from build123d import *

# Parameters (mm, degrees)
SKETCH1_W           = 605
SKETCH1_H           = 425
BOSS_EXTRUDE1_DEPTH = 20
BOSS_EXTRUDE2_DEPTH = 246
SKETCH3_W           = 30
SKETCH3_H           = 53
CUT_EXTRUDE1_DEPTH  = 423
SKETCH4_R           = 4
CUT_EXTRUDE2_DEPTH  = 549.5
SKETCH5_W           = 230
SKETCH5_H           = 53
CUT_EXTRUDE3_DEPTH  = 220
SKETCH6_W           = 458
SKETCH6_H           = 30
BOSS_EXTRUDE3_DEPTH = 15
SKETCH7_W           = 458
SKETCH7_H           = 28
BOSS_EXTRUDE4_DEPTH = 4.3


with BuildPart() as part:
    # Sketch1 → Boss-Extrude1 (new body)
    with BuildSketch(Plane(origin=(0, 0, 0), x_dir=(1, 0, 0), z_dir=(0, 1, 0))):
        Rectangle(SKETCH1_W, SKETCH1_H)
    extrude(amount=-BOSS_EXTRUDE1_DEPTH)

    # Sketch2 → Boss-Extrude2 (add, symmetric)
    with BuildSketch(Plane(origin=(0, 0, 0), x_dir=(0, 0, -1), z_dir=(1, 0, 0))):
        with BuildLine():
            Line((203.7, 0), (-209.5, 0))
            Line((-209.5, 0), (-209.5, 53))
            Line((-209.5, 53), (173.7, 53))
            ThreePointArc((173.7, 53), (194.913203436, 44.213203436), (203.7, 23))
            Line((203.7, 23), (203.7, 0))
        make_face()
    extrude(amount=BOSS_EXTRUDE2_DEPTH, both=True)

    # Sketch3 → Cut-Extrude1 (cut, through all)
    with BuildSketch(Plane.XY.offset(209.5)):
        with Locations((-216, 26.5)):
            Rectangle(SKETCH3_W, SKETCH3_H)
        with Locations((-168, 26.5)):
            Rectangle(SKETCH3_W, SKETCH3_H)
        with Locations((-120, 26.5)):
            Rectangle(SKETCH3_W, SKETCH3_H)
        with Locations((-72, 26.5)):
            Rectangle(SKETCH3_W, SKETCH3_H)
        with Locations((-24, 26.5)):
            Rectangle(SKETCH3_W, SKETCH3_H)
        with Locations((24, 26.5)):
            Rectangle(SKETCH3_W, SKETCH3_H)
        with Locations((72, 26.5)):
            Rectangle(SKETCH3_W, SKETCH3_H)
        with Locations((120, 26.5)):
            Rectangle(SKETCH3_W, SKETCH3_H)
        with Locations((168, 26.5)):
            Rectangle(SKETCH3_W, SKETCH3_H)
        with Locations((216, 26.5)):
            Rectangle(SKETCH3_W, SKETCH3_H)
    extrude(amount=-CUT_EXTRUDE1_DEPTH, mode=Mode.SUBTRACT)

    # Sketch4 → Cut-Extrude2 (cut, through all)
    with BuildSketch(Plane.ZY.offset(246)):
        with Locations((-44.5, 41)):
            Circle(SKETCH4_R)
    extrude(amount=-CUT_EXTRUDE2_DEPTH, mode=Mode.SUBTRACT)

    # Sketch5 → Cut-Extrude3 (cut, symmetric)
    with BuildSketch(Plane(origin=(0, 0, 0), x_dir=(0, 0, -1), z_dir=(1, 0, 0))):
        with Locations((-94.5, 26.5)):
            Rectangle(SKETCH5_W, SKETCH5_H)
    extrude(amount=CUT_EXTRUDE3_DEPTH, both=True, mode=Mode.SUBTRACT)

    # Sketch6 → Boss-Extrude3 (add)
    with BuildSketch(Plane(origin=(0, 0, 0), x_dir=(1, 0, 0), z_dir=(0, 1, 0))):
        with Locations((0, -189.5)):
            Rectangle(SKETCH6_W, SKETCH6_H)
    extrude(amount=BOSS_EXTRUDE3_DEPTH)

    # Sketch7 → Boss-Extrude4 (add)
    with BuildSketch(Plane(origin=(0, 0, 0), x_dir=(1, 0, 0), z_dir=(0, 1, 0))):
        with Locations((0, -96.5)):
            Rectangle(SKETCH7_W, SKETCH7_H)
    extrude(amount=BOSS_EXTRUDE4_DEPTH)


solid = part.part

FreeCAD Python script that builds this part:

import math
import FreeCAD as App
import Part
import Sketcher
Q = App.Units.Quantity

doc = App.newDocument("Part")
body = doc.addObject("PartDesign::Body", "Body")

# Sketch on XZ plane
sketch1 = body.newObject("Sketcher::SketchObject", "Sketch")
sketch1.AttachmentSupport = (doc.getObject("XZ_Plane"), [""])
sketch1.MapMode = "FlatFace"
sketch1.addGeometry([
    Part.LineSegment(App.Vector(-302, -212, 0), App.Vector(-302, 212, 0)),
    Part.LineSegment(App.Vector(-302, 212, 0), App.Vector(302, 212, 0)),
    Part.LineSegment(App.Vector(302, 212, 0), App.Vector(302, -212, 0)),
    Part.LineSegment(App.Vector(302, -212, 0), App.Vector(-302, -212, 0)),
], False)
sketch1.addConstraint([
    Sketcher.Constraint("Coincident", 0, 2, 1, 1),
    Sketcher.Constraint("Coincident", 1, 2, 2, 1),
    Sketcher.Constraint("Coincident", 2, 2, 3, 1),
    Sketcher.Constraint("Coincident", 3, 2, 0, 1),
    Sketcher.Constraint("Vertical", 0),
    Sketcher.Constraint("Horizontal", 1),
    Sketcher.Constraint("Vertical", 2),
    Sketcher.Constraint("Horizontal", 3),
    Sketcher.Constraint("Symmetric", 0, 2, 2, 2, -1, 1),
    Sketcher.Constraint("DistanceX", 1, 1, 1, 2, Q("605 mm")),
    Sketcher.Constraint("DistanceY", 0, 1, 0, 2, Q("425 mm")),
])
pad1 = body.newObject("PartDesign::Pad", "Pad")
pad1.Profile = sketch1
pad1.Length = 20

# Sketch on YZ plane
sketch2 = body.newObject("Sketcher::SketchObject", "Sketch001")
sketch2.AttachmentSupport = (doc.getObject("YZ_Plane"), [""])
sketch2.MapMode = "FlatFace"
sketch2.addGeometry([
    Part.LineSegment(App.Vector(0, 210, 0), App.Vector(0, -204, 0)),  # 0
    Part.LineSegment(App.Vector(0, -204, 0), App.Vector(23, -204, 0)),  # 1
    Part.ArcOfCircle(Part.Circle(App.Vector(23, -174, 0), App.Vector(0, 0, 1), 30), math.radians(-90), math.radians(0)),  # 2
    Part.LineSegment(App.Vector(53, -174, 0), App.Vector(53, 210, 0)),  # 3
    Part.LineSegment(App.Vector(53, 210, 0), App.Vector(0, 210, 0)),  # 4
], False)
sketch2.addConstraint([
    Sketcher.Constraint("Coincident", 0, 2, 1, 1),
    Sketcher.Constraint("Tangent", 1, 2, 2, 1),
    Sketcher.Constraint("Tangent", 2, 2, 3, 1),
    Sketcher.Constraint("Coincident", 3, 2, 4, 1),
    Sketcher.Constraint("Coincident", 4, 2, 0, 1),
    Sketcher.Constraint("Vertical", 0),
    Sketcher.Constraint("Horizontal", 1),
    Sketcher.Constraint("Vertical", 3),
    Sketcher.Constraint("Horizontal", 4),
    Sketcher.Constraint("PointOnObject", 0, 2, -2),
    Sketcher.Constraint("Radius", 2, Q("30 mm")),
    Sketcher.Constraint("DistanceX", 1, 1, 1, 2, Q("23 mm")),
    Sketcher.Constraint("DistanceY", 0, 2, 0, 1, Q("413.2 mm")),
    Sketcher.Constraint("DistanceY", 2, 3, -1, 1, Q("173.7 mm")),
])
pad2 = body.newObject("PartDesign::Pad", "Pad001")
pad2.Profile = sketch2
pad2.Length = 492
pad2.Midplane = True

# Sketch on XY plane
sketch3 = body.newObject("Sketcher::SketchObject", "Sketch002")
sketch3.AttachmentSupport = (doc.getObject("XY_Plane"), [""])
sketch3.MapMode = "FlatFace"
sketch3.AttachmentOffset = App.Placement(App.Vector(0, 0, 209.5), App.Rotation())
sketch3.addGeometry([
    Part.LineSegment(App.Vector(-231, 53, 0), App.Vector(-231, 0, 0)),  # 0
    Part.LineSegment(App.Vector(-231, 0, 0), App.Vector(-201, 0, 0)),  # 1
    Part.LineSegment(App.Vector(-201, 0, 0), App.Vector(-201, 53, 0)),  # 2
    Part.LineSegment(App.Vector(-201, 53, 0), App.Vector(-231, 53, 0)),  # 3
    Part.LineSegment(App.Vector(-183, 53, 0), App.Vector(-183, 0, 0)),  # 4
    Part.LineSegment(App.Vector(-183, 0, 0), App.Vector(-153, 0, 0)),  # 5
    Part.LineSegment(App.Vector(-153, 0, 0), App.Vector(-153, 53, 0)),  # 6
    Part.LineSegment(App.Vector(-153, 53, 0), App.Vector(-183, 53, 0)),  # 7
    Part.LineSegment(App.Vector(-135, 53, 0), App.Vector(-135, 0, 0)),  # 8
    Part.LineSegment(App.Vector(-135, 0, 0), App.Vector(-105, 0, 0)),  # 9
    Part.LineSegment(App.Vector(-105, 0, 0), App.Vector(-105, 53, 0)),  # 10
    Part.LineSegment(App.Vector(-105, 53, 0), App.Vector(-135, 53, 0)),  # 11
    Part.LineSegment(App.Vector(-87, 53, 0), App.Vector(-87, 0, 0)),  # 12
    Part.LineSegment(App.Vector(-87, 0, 0), App.Vector(-57, 0, 0)),  # 13
    Part.LineSegment(App.Vector(-57, 0, 0), App.Vector(-57, 53, 0)),  # 14
    Part.LineSegment(App.Vector(-57, 53, 0), App.Vector(-87, 53, 0)),  # 15
    Part.LineSegment(App.Vector(-39, 53, 0), App.Vector(-39, 0, 0)),  # 16
    Part.LineSegment(App.Vector(-39, 0, 0), App.Vector(-9, 0, 0)),  # 17
    Part.LineSegment(App.Vector(-9, 0, 0), App.Vector(-9, 53, 0)),  # 18
    Part.LineSegment(App.Vector(-9, 53, 0), App.Vector(-39, 53, 0)),  # 19
    Part.LineSegment(App.Vector(9, 53, 0), App.Vector(9, 0, 0)),  # 20
    Part.LineSegment(App.Vector(9, 0, 0), App.Vector(39, 0, 0)),  # 21
    Part.LineSegment(App.Vector(39, 0, 0), App.Vector(39, 53, 0)),  # 22
    Part.LineSegment(App.Vector(39, 53, 0), App.Vector(9, 53, 0)),  # 23
    Part.LineSegment(App.Vector(57, 53, 0), App.Vector(57, 0, 0)),  # 24
    Part.LineSegment(App.Vector(57, 0, 0), App.Vector(87, 0, 0)),  # 25
    Part.LineSegment(App.Vector(87, 0, 0), App.Vector(87, 53, 0)),  # 26
    Part.LineSegment(App.Vector(87, 53, 0), App.Vector(57, 53, 0)),  # 27
    Part.LineSegment(App.Vector(105, 53, 0), App.Vector(105, 0, 0)),  # 28
    Part.LineSegment(App.Vector(105, 0, 0), App.Vector(135, 0, 0)),  # 29
    Part.LineSegment(App.Vector(135, 0, 0), App.Vector(135, 53, 0)),  # 30
    Part.LineSegment(App.Vector(135, 53, 0), App.Vector(105, 53, 0)),  # 31
    Part.LineSegment(App.Vector(153, 53, 0), App.Vector(153, 0, 0)),  # 32
    Part.LineSegment(App.Vector(153, 0, 0), App.Vector(183, 0, 0)),  # 33
    Part.LineSegment(App.Vector(183, 0, 0), App.Vector(183, 53, 0)),  # 34
    Part.LineSegment(App.Vector(183, 53, 0), App.Vector(153, 53, 0)),  # 35
    Part.LineSegment(App.Vector(201, 53, 0), App.Vector(201, 0, 0)),  # 36
    Part.LineSegment(App.Vector(201, 0, 0), App.Vector(231, 0, 0)),  # 37
    Part.LineSegment(App.Vector(231, 0, 0), App.Vector(231, 53, 0)),  # 38
    Part.LineSegment(App.Vector(231, 53, 0), App.Vector(201, 53, 0)),  # 39
], False)
sketch3.addConstraint([
    Sketcher.Constraint("Coincident", 0, 2, 1, 1),
    Sketcher.Constraint("Coincident", 1, 2, 2, 1),
    Sketcher.Constraint("Coincident", 2, 2, 3, 1),
    Sketcher.Constraint("Coincident", 3, 2, 0, 1),
    Sketcher.Constraint("Coincident", 4, 2, 5, 1),
    Sketcher.Constraint("Coincident", 5, 2, 6, 1),
    Sketcher.Constraint("Coincident", 6, 2, 7, 1),
    Sketcher.Constraint("Coincident", 7, 2, 4, 1),
    Sketcher.Constraint("Coincident", 8, 2, 9, 1),
    Sketcher.Constraint("Coincident", 9, 2, 10, 1),
    Sketcher.Constraint("Coincident", 10, 2, 11, 1),
    Sketcher.Constraint("Coincident", 11, 2, 8, 1),
    Sketcher.Constraint("Coincident", 12, 2, 13, 1),
    Sketcher.Constraint("Coincident", 13, 2, 14, 1),
    Sketcher.Constraint("Coincident", 14, 2, 15, 1),
    Sketcher.Constraint("Coincident", 15, 2, 12, 1),
    Sketcher.Constraint("Coincident", 16, 2, 17, 1),
    Sketcher.Constraint("Coincident", 17, 2, 18, 1),
    Sketcher.Constraint("Coincident", 18, 2, 19, 1),
    Sketcher.Constraint("Coincident", 19, 2, 16, 1),
    Sketcher.Constraint("Coincident", 20, 2, 21, 1),
    Sketcher.Constraint("Coincident", 21, 2, 22, 1),
    Sketcher.Constraint("Coincident", 22, 2, 23, 1),
    Sketcher.Constraint("Coincident", 23, 2, 20, 1),
    Sketcher.Constraint("Coincident", 24, 2, 25, 1),
    Sketcher.Constraint("Coincident", 25, 2, 26, 1),
    Sketcher.Constraint("Coincident", 26, 2, 27, 1),
    Sketcher.Constraint("Coincident", 27, 2, 24, 1),
    Sketcher.Constraint("Coincident", 28, 2, 29, 1),
    Sketcher.Constraint("Coincident", 29, 2, 30, 1),
    Sketcher.Constraint("Coincident", 30, 2, 31, 1),
    Sketcher.Constraint("Coincident", 31, 2, 28, 1),
    Sketcher.Constraint("Coincident", 32, 2, 33, 1),
    Sketcher.Constraint("Coincident", 33, 2, 34, 1),
    Sketcher.Constraint("Coincident", 34, 2, 35, 1),
    Sketcher.Constraint("Coincident", 35, 2, 32, 1),
    Sketcher.Constraint("Coincident", 36, 2, 37, 1),
    Sketcher.Constraint("Coincident", 37, 2, 38, 1),
    Sketcher.Constraint("Coincident", 38, 2, 39, 1),
    Sketcher.Constraint("Coincident", 39, 2, 36, 1),
    Sketcher.Constraint("Vertical", 0),
    Sketcher.Constraint("Horizontal", 1),
    Sketcher.Constraint("Vertical", 2),
    Sketcher.Constraint("Horizontal", 3),
    Sketcher.Constraint("Vertical", 4),
    Sketcher.Constraint("Horizontal", 5),
    Sketcher.Constraint("Vertical", 6),
    Sketcher.Constraint("Horizontal", 7),
    Sketcher.Constraint("Vertical", 8),
    Sketcher.Constraint("Horizontal", 9),
    Sketcher.Constraint("Vertical", 10),
    Sketcher.Constraint("Horizontal", 11),
    Sketcher.Constraint("Vertical", 12),
    Sketcher.Constraint("Horizontal", 13),
    Sketcher.Constraint("Vertical", 14),
    Sketcher.Constraint("Horizontal", 15),
    Sketcher.Constraint("Vertical", 16),
    Sketcher.Constraint("Horizontal", 17),
    Sketcher.Constraint("Vertical", 18),
    Sketcher.Constraint("Horizontal", 19),
    Sketcher.Constraint("Vertical", 20),
    Sketcher.Constraint("Horizontal", 21),
    Sketcher.Constraint("Vertical", 22),
    Sketcher.Constraint("Horizontal", 23),
    Sketcher.Constraint("Vertical", 24),
    Sketcher.Constraint("Horizontal", 25),
    Sketcher.Constraint("Vertical", 26),
    Sketcher.Constraint("Horizontal", 27),
    Sketcher.Constraint("Vertical", 28),
    Sketcher.Constraint("Horizontal", 29),
    Sketcher.Constraint("Vertical", 30),
    Sketcher.Constraint("Horizontal", 31),
    Sketcher.Constraint("Vertical", 32),
    Sketcher.Constraint("Horizontal", 33),
    Sketcher.Constraint("Vertical", 34),
    Sketcher.Constraint("Horizontal", 35),
    Sketcher.Constraint("Vertical", 36),
    Sketcher.Constraint("Horizontal", 37),
    Sketcher.Constraint("Vertical", 38),
    Sketcher.Constraint("Horizontal", 39),
    Sketcher.Constraint("Symmetric", 17, 2, 20, 2, -1, 1),
    Sketcher.Constraint("Symmetric", 13, 2, 24, 2, -1, 1),
    Sketcher.Constraint("Symmetric", 9, 2, 28, 2, -1, 1),
    Sketcher.Constraint("Symmetric", 5, 2, 32, 2, -1, 1),
    Sketcher.Constraint("Symmetric", 1, 2, 36, 2, -1, 1),
    Sketcher.Constraint("Symmetric", 16, 2, 21, 2, -2),
    Sketcher.Constraint("Symmetric", 12, 2, 25, 2, -2),
    Sketcher.Constraint("Symmetric", 8, 2, 29, 2, -2),
    Sketcher.Constraint("Symmetric", 4, 2, 33, 2, -2),
    Sketcher.Constraint("Symmetric", 0, 2, 37, 2, -2),
    Sketcher.Constraint("Horizontal", 3, 2, 6, 2),
    Sketcher.Constraint("Horizontal", 7, 2, 10, 2),
    Sketcher.Constraint("Horizontal", 11, 2, 14, 2),
    Sketcher.Constraint("Horizontal", 15, 2, 18, 2),
    Sketcher.Constraint("Horizontal", 19, 2, 22, 2),
    Sketcher.Constraint("Horizontal", 23, 2, 26, 2),
    Sketcher.Constraint("Horizontal", 27, 2, 30, 2),
    Sketcher.Constraint("Horizontal", 31, 2, 34, 2),
    Sketcher.Constraint("Horizontal", 35, 2, 38, 2),
    Sketcher.Constraint("Equal", 3, 5),
    Sketcher.Constraint("Equal", 7, 9),
    Sketcher.Constraint("Equal", 11, 13),
    Sketcher.Constraint("Equal", 15, 17),
    Sketcher.Constraint("DistanceX", 1, 1, 1, 2, Q("30 mm")),
    Sketcher.Constraint("DistanceY", 0, 2, 0, 1, Q("53 mm")),
    Sketcher.Constraint("DistanceX", 0, 2, -1, 1, Q("231 mm")),
    Sketcher.Constraint("DistanceX", 4, 2, -1, 1, Q("183 mm")),
    Sketcher.Constraint("DistanceX", 8, 2, -1, 1, Q("135 mm")),
    Sketcher.Constraint("DistanceX", 12, 2, -1, 1, Q("87 mm")),
    Sketcher.Constraint("DistanceX", 16, 2, -1, 1, Q("39 mm")),
])
pocket1 = body.newObject("PartDesign::Pocket", "Pocket")
pocket1.Profile = sketch3
pocket1.Type = "ThroughAll"

# Sketch on YZ plane
sketch4 = body.newObject("Sketcher::SketchObject", "Sketch003")
sketch4.AttachmentSupport = (doc.getObject("YZ_Plane"), [""])
sketch4.MapMode = "FlatFace"
sketch4.AttachmentOffset = App.Placement(App.Vector(0, 0, -246), App.Rotation())
sketch4.addGeometry(Part.Circle(App.Vector(41, -44.5, 0), App.Vector(0, 0, 1), 4), False)
sketch4.addConstraint([
    Sketcher.Constraint("Diameter", 0, Q("8 mm")),
    Sketcher.Constraint("DistanceX", -1, 1, 0, 3, Q("41 mm")),
    Sketcher.Constraint("DistanceY", 0, 3, -1, 1, Q("44.5 mm")),
])
pocket2 = body.newObject("PartDesign::Pocket", "Pocket001")
pocket2.Profile = sketch4
pocket2.Type = "ThroughAll"
pocket2.Reversed = True

# Sketch on YZ plane
sketch5 = body.newObject("Sketcher::SketchObject", "Sketch004")
sketch5.AttachmentSupport = (doc.getObject("YZ_Plane"), [""])
sketch5.MapMode = "FlatFace"
sketch5.addGeometry([
    Part.LineSegment(App.Vector(53, 210, 0), App.Vector(0, 210, 0)),
    Part.LineSegment(App.Vector(0, 210, 0), App.Vector(0, -20, 0)),
    Part.LineSegment(App.Vector(0, -20, 0), App.Vector(53, -20, 0)),
    Part.LineSegment(App.Vector(53, -20, 0), App.Vector(53, 210, 0)),
], False)
sketch5.addConstraint([
    Sketcher.Constraint("Coincident", 0, 2, 1, 1),
    Sketcher.Constraint("Coincident", 1, 2, 2, 1),
    Sketcher.Constraint("Coincident", 2, 2, 3, 1),
    Sketcher.Constraint("Coincident", 3, 2, 0, 1),
    Sketcher.Constraint("Horizontal", 0),
    Sketcher.Constraint("Vertical", 1),
    Sketcher.Constraint("Horizontal", 2),
    Sketcher.Constraint("Vertical", 3),
    Sketcher.Constraint("PointOnObject", 0, 2, -2),
    Sketcher.Constraint("DistanceX", 0, 2, 0, 1, Q("53 mm")),
    Sketcher.Constraint("DistanceY", 1, 2, 1, 1, Q("230 mm")),
    Sketcher.Constraint("DistanceY", -1, 1, 0, 2, Q("209.5 mm")),
])
pocket3 = body.newObject("PartDesign::Pocket", "Pocket002")
pocket3.Profile = sketch5
pocket3.Length = 440
pocket3.Midplane = True

# Sketch on XZ plane
sketch6 = body.newObject("Sketcher::SketchObject", "Sketch005")
sketch6.AttachmentSupport = (doc.getObject("XZ_Plane"), [""])
sketch6.MapMode = "FlatFace"
sketch6.addGeometry([
    Part.LineSegment(App.Vector(-229, 174, 0), App.Vector(-229, 204, 0)),
    Part.LineSegment(App.Vector(-229, 204, 0), App.Vector(229, 204, 0)),
    Part.LineSegment(App.Vector(229, 204, 0), App.Vector(229, 174, 0)),
    Part.LineSegment(App.Vector(229, 174, 0), App.Vector(-229, 174, 0)),
], False)
sketch6.addConstraint([
    Sketcher.Constraint("Coincident", 0, 2, 1, 1),
    Sketcher.Constraint("Coincident", 1, 2, 2, 1),
    Sketcher.Constraint("Coincident", 2, 2, 3, 1),
    Sketcher.Constraint("Coincident", 3, 2, 0, 1),
    Sketcher.Constraint("Vertical", 0),
    Sketcher.Constraint("Horizontal", 1),
    Sketcher.Constraint("Vertical", 2),
    Sketcher.Constraint("Horizontal", 3),
    Sketcher.Constraint("DistanceX", 1, 1, 1, 2, Q("458 mm")),
    Sketcher.Constraint("DistanceY", 0, 1, 0, 2, Q("30 mm")),
    Sketcher.Constraint("DistanceX", 0, 2, -1, 1, Q("229 mm")),
    Sketcher.Constraint("DistanceY", -1, 1, 0, 2, Q("204.5 mm")),
])
pad3 = body.newObject("PartDesign::Pad", "Pad002")
pad3.Profile = sketch6
pad3.Length = 15
pad3.Reversed = True

# Sketch on XZ plane
sketch7 = body.newObject("Sketcher::SketchObject", "Sketch006")
sketch7.AttachmentSupport = (doc.getObject("XZ_Plane"), [""])
sketch7.MapMode = "FlatFace"
sketch7.addGeometry([
    Part.LineSegment(App.Vector(-229, 82, 0), App.Vector(-229, 110, 0)),
    Part.LineSegment(App.Vector(-229, 110, 0), App.Vector(229, 110, 0)),
    Part.LineSegment(App.Vector(229, 110, 0), App.Vector(229, 82, 0)),
    Part.LineSegment(App.Vector(229, 82, 0), App.Vector(-229, 82, 0)),
], False)
sketch7.addConstraint([
    Sketcher.Constraint("Coincident", 0, 2, 1, 1),
    Sketcher.Constraint("Coincident", 1, 2, 2, 1),
    Sketcher.Constraint("Coincident", 2, 2, 3, 1),
    Sketcher.Constraint("Coincident", 3, 2, 0, 1),
    Sketcher.Constraint("Vertical", 0),
    Sketcher.Constraint("Horizontal", 1),
    Sketcher.Constraint("Vertical", 2),
    Sketcher.Constraint("Horizontal", 3),
    Sketcher.Constraint("DistanceX", 1, 1, 1, 2, Q("458 mm")),
    Sketcher.Constraint("DistanceY", 0, 1, 0, 2, Q("28 mm")),
    Sketcher.Constraint("DistanceX", 0, 2, -1, 1, Q("229 mm")),
    Sketcher.Constraint("DistanceY", -1, 1, 0, 2, Q("110.5 mm")),
])
pad4 = body.newObject("PartDesign::Pad", "Pad003")
pad4.Profile = sketch7
pad4.Length = 4.3
pad4.Reversed = True

doc.recompute()
